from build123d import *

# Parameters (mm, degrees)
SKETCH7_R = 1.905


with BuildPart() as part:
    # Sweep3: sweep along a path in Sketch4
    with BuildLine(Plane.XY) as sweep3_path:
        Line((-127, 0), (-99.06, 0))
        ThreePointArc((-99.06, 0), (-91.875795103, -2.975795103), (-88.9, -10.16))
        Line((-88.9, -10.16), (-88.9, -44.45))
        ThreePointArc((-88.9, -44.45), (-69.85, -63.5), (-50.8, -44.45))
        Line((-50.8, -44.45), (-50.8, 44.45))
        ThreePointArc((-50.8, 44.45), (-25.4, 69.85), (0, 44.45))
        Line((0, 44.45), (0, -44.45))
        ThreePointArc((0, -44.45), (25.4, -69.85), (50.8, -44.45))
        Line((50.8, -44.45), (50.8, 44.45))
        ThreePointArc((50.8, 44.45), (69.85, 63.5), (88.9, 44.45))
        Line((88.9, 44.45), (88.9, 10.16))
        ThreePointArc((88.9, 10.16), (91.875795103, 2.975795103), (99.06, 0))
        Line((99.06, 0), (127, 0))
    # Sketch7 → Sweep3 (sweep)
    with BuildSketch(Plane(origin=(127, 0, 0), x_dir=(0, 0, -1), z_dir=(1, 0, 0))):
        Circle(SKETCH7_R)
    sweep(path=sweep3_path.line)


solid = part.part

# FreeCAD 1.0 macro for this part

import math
import FreeCAD as App
import Part
import Sketcher
Q = App.Units.Quantity

doc = App.newDocument("Part")
body = doc.addObject("PartDesign::Body", "Body")

sketch1 = body.newObject("Sketcher::SketchObject", "Sketch")
sketch1.AttachmentSupport = (doc.getObject("YZ_Plane"), [""])
sketch1.MapMode = "FlatFace"
sketch1.AttachmentOffset = App.Placement(App.Vector(0, 0, 5 * 25.4), App.Rotation())
sketch1.addGeometry(Part.Circle(App.Vector(0, 0, 0), App.Vector(0, 0, 1), 1.9), False)
sketch1.addConstraint([
    Sketcher.Constraint("Coincident", 0, 3, -1, 1),
    Sketcher.Constraint("Diameter", 0, Q("0.15 in")),
])

sketch2 = body.newObject("Sketcher::SketchObject", "Sketch001")
sketch2.AttachmentSupport = (doc.getObject("XY_Plane"), [""])
sketch2.MapMode = "FlatFace"
sketch2.addGeometry([
    Part.LineSegment(App.Vector(-127, 0, 0), App.Vector(-99, 0, 0)),
    Part.ArcOfCircle(Part.Circle(App.Vector(-99, -10, 0), App.Vector(0, 0, 1), 10), math.radians(0), math.radians(90)),
    Part.LineSegment(App.Vector(-89, -10, 0), App.Vector(-89, -44, 0)),
    Part.ArcOfCircle(Part.Circle(App.Vector(-70, -44, 0), App.Vector(0, 0, 1), 19), math.radians(180), math.radians(360)),
    Part.LineSegment(App.Vector(-51, -44, 0), App.Vector(-51, 44, 0)),
    Part.ArcOfCircle(Part.Circle(App.Vector(-25, 44, 0), App.Vector(0, 0, 1), 25), math.radians(0), math.radians(180)),
    Part.LineSegment(App.Vector(0, 44, 0), App.Vector(0, -44, 0)),
    Part.ArcOfCircle(Part.Circle(App.Vector(25, -44, 0), App.Vector(0, 0, 1), 25), math.radians(180), math.radians(360)),
    Part.LineSegment(App.Vector(51, -44, 0), App.Vector(51, 44, 0)),
    Part.ArcOfCircle(Part.Circle(App.Vector(70, 44, 0), App.Vector(0, 0, 1), 19), math.radians(0), math.radians(180)),
    Part.LineSegment(App.Vector(89, 44, 0), App.Vector(89, 10, 0)),
    Part.ArcOfCircle(Part.Circle(App.Vector(99, 10, 0), App.Vector(0, 0, 1), 10), math.radians(180), math.radians(270)),
    Part.LineSegment(App.Vector(99, 0, 0), App.Vector(127, 0, 0)),
], False)
sketch2.addConstraint([
    Sketcher.Constraint("Tangent", 0, 2, 1, 2),
    Sketcher.Constraint("Tangent", 1, 1, 2, 1),
    Sketcher.Constraint("Tangent", 2, 2, 3, 1),
    Sketcher.Constraint("Tangent", 3, 2, 4, 1),
    Sketcher.Constraint("Tangent", 4, 2, 5, 2),
    Sketcher.Constraint("Tangent", 5, 1, 6, 1),
    Sketcher.Constraint("Tangent", 6, 2, 7, 1),
    Sketcher.Constraint("Tangent", 7, 2, 8, 1),
    Sketcher.Constraint("Tangent", 8, 2, 9, 2),
    Sketcher.Constraint("Tangent", 9, 1, 10, 1),
    Sketcher.Constraint("Tangent", 10, 2, 11, 1),
    Sketcher.Constraint("Tangent", 11, 2, 12, 1),
    Sketcher.Constraint("Horizontal", 0),
    Sketcher.Constraint("Vertical", 2),
    Sketcher.Constraint("Vertical", 4),
    Sketcher.Constraint("Vertical", 6),
    Sketcher.Constraint("Vertical", 8),
    Sketcher.Constraint("Vertical", 10),
    Sketcher.Constraint("Horizontal", 12),
    Sketcher.Constraint("Equal", 5, 7),
    Sketcher.Constraint("Equal", 3, 9),
    Sketcher.Constraint("Equal", 1, 11),
    Sketcher.Constraint("Symmetric", 5, 3, 7, 3, -1, 1),
    Sketcher.Constraint("Symmetric", 0, 1, 12, 2, -1, 1),
    Sketcher.Constraint("PointOnObject", 0, 1, -1),
    Sketcher.Constraint("Horizontal", 3, 3, 7, 3),
    Sketcher.Constraint("Horizontal", 5, 3, 9, 3),
    Sketcher.Constraint("Radius", 5, Q("1 in")),
    Sketcher.Constraint("Radius", 1, Q("0.4 in")),
    Sketcher.Constraint("Radius", 3, Q("0.75 in")),
    Sketcher.Constraint("DistanceX", 0, 1, 0, 2, Q("1.1 in")),
    Sketcher.Constraint("DistanceY", 4, 1, 4, 2, Q("3.5 in")),
])
doc.recompute()

additivepipe = body.newObject("PartDesign::AdditivePipe", "AdditivePipe")
additivepipe.Profile = sketch1
additivepipe.Spine = (sketch2, ["Edge1", "Edge2", "Edge3", "Edge4", "Edge5", "Edge6", "Edge7", "Edge8", "Edge9", "Edge10", "Edge11", "Edge12", "Edge13"])

doc.recompute()
